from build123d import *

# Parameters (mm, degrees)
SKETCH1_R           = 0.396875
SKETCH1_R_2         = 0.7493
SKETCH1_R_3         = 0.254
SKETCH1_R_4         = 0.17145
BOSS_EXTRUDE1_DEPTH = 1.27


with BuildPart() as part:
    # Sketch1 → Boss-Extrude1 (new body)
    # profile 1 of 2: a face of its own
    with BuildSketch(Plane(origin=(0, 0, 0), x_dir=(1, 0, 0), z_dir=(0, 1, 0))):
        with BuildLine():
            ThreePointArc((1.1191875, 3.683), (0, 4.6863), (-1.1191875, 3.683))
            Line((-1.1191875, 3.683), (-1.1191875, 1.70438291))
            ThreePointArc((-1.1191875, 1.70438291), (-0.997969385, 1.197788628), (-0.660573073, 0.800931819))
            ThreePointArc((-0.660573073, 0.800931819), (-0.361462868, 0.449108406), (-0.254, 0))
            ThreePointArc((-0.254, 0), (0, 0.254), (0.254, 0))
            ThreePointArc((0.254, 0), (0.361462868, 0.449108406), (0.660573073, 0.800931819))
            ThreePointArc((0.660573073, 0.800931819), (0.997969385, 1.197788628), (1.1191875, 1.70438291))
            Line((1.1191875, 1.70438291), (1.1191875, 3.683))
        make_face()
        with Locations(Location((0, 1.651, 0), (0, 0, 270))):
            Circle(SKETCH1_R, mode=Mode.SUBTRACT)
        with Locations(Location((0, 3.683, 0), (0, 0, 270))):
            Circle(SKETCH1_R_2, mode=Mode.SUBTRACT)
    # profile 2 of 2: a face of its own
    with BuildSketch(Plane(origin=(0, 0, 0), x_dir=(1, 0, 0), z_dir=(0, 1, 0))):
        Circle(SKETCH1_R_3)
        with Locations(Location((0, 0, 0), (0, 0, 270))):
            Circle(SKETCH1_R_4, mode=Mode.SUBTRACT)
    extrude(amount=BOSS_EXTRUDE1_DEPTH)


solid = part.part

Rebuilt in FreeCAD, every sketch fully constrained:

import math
import FreeCAD as App
import Part
import Sketcher
Q = App.Units.Quantity

doc = App.newDocument("Part")
body = doc.addObject("PartDesign::Body", "Body")

# Sketch on XZ plane
sketch1 = body.newObject("Sketcher::SketchObject", "Sketch")
sketch1.AttachmentSupport = (doc.getObject("XZ_Plane"), [""])
sketch1.MapMode = "FlatFace"
sketch1.addGeometry(Part.ArcOfCircle(Part.Circle(App.Vector(0, -3.56042, 0), App.Vector(0, 0, 1), 1.12588), math.radians(-173.749524), math.radians(-6.250476)), False)
sketch1.addGeometry(Part.LineSegment(App.Vector(-1.119188, -3.683, 0), App.Vector(-1.119188, -1.704383, 0)), False)
sketch1.addGeometry(Part.ArcOfCircle(Part.Circle(App.Vector(0, -1.704383, 0), App.Vector(0, 0, 1), 1.119187), math.radians(126.173016), math.radians(180)), False)
sketch1.addGeometry(Part.ArcOfCircle(Part.Circle(App.Vector(-1.246188, 0, 0), App.Vector(0, 0, 1), 0.992188), math.radians(-53.826983), math.radians(0)), False)
sketch1.addGeometry(Part.ArcOfCircle(Part.Circle(App.Vector(0, 0, 0), App.Vector(0, 0, 1), 0.254), math.radians(0), math.radians(180)), False)
sketch1.addGeometry(Part.ArcOfCircle(Part.Circle(App.Vector(1.246188, 0, 0), App.Vector(0, 0, 1), 0.992188), math.radians(-180), math.radians(-126.173017)), False)
sketch1.addGeometry(Part.ArcOfCircle(Part.Circle(App.Vector(0, -1.704383, 0), App.Vector(0, 0, 1), 1.119187), math.radians(0), math.radians(53.826984)), False)
sketch1.addGeometry(Part.LineSegment(App.Vector(1.119188, -1.704383, 0), App.Vector(1.119188, -3.683, 0)), False)
sketch1.addGeometry(Part.Circle(App.Vector(0, -1.651, 0), App.Vector(0, 0, 1), 0.396875), False)
sketch1.addGeometry(Part.Circle(App.Vector(0, -3.683, 0), App.Vector(0, 0, 1), 0.7493), False)
sketch1.addGeometry(Part.Circle(App.Vector(0, 0, 0), App.Vector(0, 0, 1), 0.17145), False)
sketch1.addConstraint(Sketcher.Constraint("Coincident", 0, 1, 1, 1))
sketch1.addConstraint(Sketcher.Constraint("Tangent", 1, 2, 2, 2))
sketch1.addConstraint(Sketcher.Constraint("Tangent", 2, 1, 3, 1))
sketch1.addConstraint(Sketcher.Constraint("Tangent", 3, 2, 4, 2))
sketch1.addConstraint(Sketcher.Constraint("Tangent", 4, 1, 5, 1))
sketch1.addConstraint(Sketcher.Constraint("Tangent", 5, 2, 6, 2))
sketch1.addConstraint(Sketcher.Constraint("Tangent", 6, 1, 7, 1))
sketch1.addConstraint(Sketcher.Constraint("Coincident", 7, 2, 0, 2))
sketch1.addConstraint(Sketcher.Constraint("Vertical", 1))
sketch1.addConstraint(Sketcher.Constraint("Vertical", 7))
sketch1.addConstraint(Sketcher.Constraint("Coincident", 4, 3, -1, 1))
sketch1.addConstraint(Sketcher.Constraint("Coincident", 10, 3, -1, 1))
sketch1.addConstraint(Sketcher.Constraint("Coincident", 6, 3, 2, 3))
sketch1.addConstraint(Sketcher.Constraint("Equal", 3, 5))
sketch1.addConstraint(Sketcher.Constraint("Equal", 2, 6))
sketch1.addConstraint(Sketcher.Constraint("Symmetric", 0, 1, 7, 2, -2))
sketch1.addConstraint(Sketcher.Constraint("PointOnObject", 3, 3, -1))
sketch1.addConstraint(Sketcher.Constraint("PointOnObject", 8, 3, -2))
sketch1.addConstraint(Sketcher.Constraint("PointOnObject", 9, 3, -2))
sketch1.addConstraint(Sketcher.Constraint("Horizontal", 9, 3, 0, 1))
sketch1.addConstraint(Sketcher.Constraint("Radius", 4, Q("0.01 in")))
sketch1.addConstraint(Sketcher.Constraint("Diameter", 8, Q("0.03125 in")))
sketch1.addConstraint(Sketcher.Constraint("Diameter", 9, Q("0.059 in")))
sketch1.addConstraint(Sketcher.Constraint("Diameter", 10, Q("0.0135 in")))
sketch1.addConstraint(Sketcher.Constraint("DistanceY", 9, 3, 8, 3, Q("0.08 in")))
sketch1.addConstraint(Sketcher.Constraint("DistanceY", 8, 3, -1, 1, Q("0.065 in")))
sketch1.addConstraint(Sketcher.Constraint("Radius", 0, Q("1.12588 mm")))
sketch1.addConstraint(Sketcher.Constraint("DistanceX", 3, 3, 1, 2, Q("0.005 in")))
sketch1.addConstraint(Sketcher.Constraint("Radius", 2, Q("1.119187 mm")))
pad1 = body.newObject("PartDesign::Pad", "Pad")
pad1.Profile = sketch1
pad1.Length = Q("0.05 in")
pad1.Reversed = True

doc.recompute()
